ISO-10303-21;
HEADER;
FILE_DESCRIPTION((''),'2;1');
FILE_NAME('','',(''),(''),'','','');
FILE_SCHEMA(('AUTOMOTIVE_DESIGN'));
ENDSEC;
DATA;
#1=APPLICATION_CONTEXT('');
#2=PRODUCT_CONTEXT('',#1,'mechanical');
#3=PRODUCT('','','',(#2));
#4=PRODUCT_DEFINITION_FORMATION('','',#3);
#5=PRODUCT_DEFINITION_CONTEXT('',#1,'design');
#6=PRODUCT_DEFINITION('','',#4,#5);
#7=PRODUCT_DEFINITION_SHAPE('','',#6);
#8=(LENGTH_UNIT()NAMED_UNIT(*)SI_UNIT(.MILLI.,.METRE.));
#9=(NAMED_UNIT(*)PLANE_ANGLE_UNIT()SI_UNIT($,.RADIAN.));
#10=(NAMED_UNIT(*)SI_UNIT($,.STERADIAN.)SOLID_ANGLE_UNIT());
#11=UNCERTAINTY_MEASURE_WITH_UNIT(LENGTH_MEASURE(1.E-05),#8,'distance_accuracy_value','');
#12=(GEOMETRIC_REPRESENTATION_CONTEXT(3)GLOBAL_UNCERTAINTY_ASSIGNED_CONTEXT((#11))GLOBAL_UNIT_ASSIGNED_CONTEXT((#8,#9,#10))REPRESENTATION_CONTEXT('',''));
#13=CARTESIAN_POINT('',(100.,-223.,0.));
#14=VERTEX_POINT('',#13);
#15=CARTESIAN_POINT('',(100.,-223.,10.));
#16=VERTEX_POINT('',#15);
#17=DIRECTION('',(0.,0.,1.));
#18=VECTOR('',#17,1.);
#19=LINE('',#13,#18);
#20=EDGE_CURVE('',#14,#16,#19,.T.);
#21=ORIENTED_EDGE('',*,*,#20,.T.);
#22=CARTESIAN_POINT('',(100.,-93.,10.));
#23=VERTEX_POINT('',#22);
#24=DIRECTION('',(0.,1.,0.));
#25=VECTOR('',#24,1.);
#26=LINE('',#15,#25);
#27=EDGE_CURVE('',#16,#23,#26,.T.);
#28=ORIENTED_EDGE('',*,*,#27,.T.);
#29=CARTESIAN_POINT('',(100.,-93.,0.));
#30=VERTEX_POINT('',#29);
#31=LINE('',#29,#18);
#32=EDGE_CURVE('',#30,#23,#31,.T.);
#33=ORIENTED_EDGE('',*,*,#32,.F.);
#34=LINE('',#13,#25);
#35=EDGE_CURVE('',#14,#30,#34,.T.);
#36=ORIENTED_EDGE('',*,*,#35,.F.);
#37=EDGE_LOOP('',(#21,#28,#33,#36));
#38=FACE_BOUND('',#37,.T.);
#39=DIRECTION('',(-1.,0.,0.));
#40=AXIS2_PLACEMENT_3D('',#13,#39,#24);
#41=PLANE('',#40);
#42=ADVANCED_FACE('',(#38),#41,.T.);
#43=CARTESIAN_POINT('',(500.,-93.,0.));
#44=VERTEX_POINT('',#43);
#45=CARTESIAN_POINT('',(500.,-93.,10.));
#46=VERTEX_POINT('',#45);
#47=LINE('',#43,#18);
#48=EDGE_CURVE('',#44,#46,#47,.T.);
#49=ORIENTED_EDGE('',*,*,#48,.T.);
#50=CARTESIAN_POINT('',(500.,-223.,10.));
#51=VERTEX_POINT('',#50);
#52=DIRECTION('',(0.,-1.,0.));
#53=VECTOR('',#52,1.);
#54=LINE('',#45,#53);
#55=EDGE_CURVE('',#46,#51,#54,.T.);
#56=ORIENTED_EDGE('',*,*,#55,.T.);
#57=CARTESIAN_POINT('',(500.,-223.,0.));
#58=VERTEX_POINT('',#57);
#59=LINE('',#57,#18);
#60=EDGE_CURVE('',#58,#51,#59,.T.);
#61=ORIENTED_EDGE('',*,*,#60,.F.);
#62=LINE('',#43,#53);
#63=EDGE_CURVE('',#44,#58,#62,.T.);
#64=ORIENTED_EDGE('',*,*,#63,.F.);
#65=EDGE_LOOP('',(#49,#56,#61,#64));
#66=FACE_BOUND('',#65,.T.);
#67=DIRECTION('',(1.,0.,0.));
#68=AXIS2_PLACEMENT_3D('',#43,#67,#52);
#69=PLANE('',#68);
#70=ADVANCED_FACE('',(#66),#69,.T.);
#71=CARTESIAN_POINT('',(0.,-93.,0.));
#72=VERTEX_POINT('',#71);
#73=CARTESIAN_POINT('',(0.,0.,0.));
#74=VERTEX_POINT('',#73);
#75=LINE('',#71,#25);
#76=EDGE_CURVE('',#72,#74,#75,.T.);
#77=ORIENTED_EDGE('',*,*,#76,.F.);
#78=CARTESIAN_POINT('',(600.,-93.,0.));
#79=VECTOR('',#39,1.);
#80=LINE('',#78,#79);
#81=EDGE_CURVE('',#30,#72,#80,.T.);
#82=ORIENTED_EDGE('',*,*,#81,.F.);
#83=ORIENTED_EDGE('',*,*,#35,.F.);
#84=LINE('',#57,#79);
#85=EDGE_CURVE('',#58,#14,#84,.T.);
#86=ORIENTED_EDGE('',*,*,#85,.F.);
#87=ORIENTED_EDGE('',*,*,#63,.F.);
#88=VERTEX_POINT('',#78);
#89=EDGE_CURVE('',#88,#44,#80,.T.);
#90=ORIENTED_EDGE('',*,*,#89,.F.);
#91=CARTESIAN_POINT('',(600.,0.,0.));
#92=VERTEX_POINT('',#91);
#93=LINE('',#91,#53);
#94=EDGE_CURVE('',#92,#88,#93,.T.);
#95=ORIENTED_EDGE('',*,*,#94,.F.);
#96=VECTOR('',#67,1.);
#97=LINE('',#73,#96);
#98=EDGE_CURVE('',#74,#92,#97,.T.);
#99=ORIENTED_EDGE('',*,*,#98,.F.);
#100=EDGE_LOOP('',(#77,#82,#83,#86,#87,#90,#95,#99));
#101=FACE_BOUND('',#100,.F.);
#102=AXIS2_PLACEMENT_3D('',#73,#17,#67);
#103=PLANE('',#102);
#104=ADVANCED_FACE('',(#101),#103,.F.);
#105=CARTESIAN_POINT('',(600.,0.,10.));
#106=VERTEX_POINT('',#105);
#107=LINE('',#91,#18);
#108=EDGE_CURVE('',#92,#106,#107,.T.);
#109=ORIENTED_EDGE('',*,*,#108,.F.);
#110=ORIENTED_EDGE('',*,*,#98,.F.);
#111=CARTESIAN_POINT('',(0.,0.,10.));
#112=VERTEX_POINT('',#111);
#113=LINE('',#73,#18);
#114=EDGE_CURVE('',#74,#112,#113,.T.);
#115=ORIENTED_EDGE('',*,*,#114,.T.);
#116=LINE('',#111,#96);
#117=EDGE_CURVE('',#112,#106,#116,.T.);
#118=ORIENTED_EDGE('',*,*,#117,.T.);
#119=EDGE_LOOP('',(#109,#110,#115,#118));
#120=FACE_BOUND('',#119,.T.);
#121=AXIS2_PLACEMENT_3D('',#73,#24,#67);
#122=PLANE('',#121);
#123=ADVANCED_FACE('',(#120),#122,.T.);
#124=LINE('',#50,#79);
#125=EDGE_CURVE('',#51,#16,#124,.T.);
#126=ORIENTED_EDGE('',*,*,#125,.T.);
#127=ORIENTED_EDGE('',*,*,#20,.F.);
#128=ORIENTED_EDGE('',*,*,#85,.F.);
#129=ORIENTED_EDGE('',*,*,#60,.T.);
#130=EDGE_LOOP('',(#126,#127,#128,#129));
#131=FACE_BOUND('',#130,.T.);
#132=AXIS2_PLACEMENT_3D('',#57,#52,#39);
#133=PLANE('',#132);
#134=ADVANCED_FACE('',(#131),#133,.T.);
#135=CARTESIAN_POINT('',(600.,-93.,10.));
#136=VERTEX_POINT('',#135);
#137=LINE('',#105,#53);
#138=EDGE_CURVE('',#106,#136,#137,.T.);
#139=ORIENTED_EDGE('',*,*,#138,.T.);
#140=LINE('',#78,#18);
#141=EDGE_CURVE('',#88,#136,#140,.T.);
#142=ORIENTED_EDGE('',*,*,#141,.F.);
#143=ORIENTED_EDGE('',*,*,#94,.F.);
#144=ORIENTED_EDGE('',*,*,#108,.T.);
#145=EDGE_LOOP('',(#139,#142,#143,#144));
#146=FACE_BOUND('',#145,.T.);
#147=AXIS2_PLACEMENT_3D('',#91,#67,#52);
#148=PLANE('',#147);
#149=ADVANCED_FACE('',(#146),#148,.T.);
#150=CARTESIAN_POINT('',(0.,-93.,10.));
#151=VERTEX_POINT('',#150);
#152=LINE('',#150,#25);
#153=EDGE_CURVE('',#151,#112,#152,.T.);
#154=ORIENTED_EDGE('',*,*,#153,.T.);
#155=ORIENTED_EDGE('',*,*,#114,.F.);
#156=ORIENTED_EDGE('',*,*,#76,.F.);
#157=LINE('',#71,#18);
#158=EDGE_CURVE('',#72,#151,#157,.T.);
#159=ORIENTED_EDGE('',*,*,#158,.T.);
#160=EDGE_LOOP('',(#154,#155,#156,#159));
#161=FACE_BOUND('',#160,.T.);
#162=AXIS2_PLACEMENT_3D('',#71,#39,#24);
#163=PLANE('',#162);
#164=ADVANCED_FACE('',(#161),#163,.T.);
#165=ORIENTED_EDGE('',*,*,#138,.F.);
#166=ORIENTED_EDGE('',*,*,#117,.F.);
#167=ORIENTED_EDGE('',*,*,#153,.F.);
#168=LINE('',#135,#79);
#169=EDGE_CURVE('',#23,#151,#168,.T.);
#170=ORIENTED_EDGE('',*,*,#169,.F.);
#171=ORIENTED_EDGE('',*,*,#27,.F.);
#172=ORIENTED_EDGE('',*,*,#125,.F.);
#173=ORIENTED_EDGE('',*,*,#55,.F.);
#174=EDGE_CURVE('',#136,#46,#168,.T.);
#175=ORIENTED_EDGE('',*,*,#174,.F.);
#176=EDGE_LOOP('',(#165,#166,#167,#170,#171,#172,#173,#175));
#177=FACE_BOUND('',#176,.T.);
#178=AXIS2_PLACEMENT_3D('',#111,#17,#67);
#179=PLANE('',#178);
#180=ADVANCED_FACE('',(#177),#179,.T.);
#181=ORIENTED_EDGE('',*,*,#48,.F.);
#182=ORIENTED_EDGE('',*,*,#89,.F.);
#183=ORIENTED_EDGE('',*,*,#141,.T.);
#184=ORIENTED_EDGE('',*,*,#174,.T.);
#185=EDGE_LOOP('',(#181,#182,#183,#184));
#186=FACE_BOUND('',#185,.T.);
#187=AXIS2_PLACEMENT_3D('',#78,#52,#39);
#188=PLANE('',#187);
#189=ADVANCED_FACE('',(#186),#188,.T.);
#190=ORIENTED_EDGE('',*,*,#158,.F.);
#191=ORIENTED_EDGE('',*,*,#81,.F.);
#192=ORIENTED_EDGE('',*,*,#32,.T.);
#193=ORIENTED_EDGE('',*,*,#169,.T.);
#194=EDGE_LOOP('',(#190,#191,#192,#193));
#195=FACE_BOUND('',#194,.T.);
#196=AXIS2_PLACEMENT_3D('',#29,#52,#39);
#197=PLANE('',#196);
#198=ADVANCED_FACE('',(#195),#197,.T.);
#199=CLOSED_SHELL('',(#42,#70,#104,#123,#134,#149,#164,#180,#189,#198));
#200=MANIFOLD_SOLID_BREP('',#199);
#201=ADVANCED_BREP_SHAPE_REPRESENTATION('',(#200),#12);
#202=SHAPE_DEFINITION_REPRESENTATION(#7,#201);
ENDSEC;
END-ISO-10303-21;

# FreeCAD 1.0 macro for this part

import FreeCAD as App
import Part
import Sketcher

V = App.Vector
Q = App.Units.Quantity


def add_polygon(sketch, points):
    """Adds a closed chain of lines whose ends are joined by coincident constraints."""
    first, n = sketch.GeometryCount, len(points)
    for a, b in zip(points, points[1:] + points[:1]):
        sketch.addGeometry(Part.LineSegment(App.Vector(*a, 0), App.Vector(*b, 0)), False)
    for i in range(n):
        sketch.addConstraint(Sketcher.Constraint("Coincident", first + i, 2, first + (i + 1) % n, 1))

doc = App.newDocument("Part")
body = doc.addObject("PartDesign::Body", "Body")

# Sketch on XY plane
sketch1 = body.newObject("Sketcher::SketchObject", "Sketch")
sketch1.AttachmentSupport = (doc.getObject("XY_Plane"), [""])
sketch1.MapMode = "FlatFace"
add_polygon(sketch1, [(600, 0), (0, 0), (0, -93), (100, -93), (100, -223), (500, -223), (500, -93), (600, -93)])  # lines 0-7
sketch1.addConstraint(Sketcher.Constraint("Horizontal", 0))
sketch1.addConstraint(Sketcher.Constraint("Vertical", 1))
sketch1.addConstraint(Sketcher.Constraint("Horizontal", 2))
sketch1.addConstraint(Sketcher.Constraint("Vertical", 3))
sketch1.addConstraint(Sketcher.Constraint("Horizontal", 4))
sketch1.addConstraint(Sketcher.Constraint("Vertical", 5))
sketch1.addConstraint(Sketcher.Constraint("Horizontal", 6))
sketch1.addConstraint(Sketcher.Constraint("Vertical", 7))
sketch1.addConstraint(Sketcher.Constraint("Coincident", 0, 2, -1, 1))
sketch1.addConstraint(Sketcher.Constraint("Horizontal", 2, 2, 5, 2))
sketch1.addConstraint(Sketcher.Constraint("Equal", 2, 6))
sketch1.addConstraint(Sketcher.Constraint("DistanceX", 0, 2, 0, 1, Q("600 mm")))
sketch1.addConstraint(Sketcher.Constraint("DistanceX", 4, 1, 4, 2, Q("400 mm")))
sketch1.addConstraint(Sketcher.Constraint("DistanceY", 1, 2, 1, 1, Q("93 mm")))
sketch1.addConstraint(Sketcher.Constraint("DistanceY", 3, 2, -1, 1, Q("223 mm")))
pad1 = body.newObject("PartDesign::Pad", "Pad")
pad1.Profile = sketch1
pad1.Length = 10

doc.recompute()
